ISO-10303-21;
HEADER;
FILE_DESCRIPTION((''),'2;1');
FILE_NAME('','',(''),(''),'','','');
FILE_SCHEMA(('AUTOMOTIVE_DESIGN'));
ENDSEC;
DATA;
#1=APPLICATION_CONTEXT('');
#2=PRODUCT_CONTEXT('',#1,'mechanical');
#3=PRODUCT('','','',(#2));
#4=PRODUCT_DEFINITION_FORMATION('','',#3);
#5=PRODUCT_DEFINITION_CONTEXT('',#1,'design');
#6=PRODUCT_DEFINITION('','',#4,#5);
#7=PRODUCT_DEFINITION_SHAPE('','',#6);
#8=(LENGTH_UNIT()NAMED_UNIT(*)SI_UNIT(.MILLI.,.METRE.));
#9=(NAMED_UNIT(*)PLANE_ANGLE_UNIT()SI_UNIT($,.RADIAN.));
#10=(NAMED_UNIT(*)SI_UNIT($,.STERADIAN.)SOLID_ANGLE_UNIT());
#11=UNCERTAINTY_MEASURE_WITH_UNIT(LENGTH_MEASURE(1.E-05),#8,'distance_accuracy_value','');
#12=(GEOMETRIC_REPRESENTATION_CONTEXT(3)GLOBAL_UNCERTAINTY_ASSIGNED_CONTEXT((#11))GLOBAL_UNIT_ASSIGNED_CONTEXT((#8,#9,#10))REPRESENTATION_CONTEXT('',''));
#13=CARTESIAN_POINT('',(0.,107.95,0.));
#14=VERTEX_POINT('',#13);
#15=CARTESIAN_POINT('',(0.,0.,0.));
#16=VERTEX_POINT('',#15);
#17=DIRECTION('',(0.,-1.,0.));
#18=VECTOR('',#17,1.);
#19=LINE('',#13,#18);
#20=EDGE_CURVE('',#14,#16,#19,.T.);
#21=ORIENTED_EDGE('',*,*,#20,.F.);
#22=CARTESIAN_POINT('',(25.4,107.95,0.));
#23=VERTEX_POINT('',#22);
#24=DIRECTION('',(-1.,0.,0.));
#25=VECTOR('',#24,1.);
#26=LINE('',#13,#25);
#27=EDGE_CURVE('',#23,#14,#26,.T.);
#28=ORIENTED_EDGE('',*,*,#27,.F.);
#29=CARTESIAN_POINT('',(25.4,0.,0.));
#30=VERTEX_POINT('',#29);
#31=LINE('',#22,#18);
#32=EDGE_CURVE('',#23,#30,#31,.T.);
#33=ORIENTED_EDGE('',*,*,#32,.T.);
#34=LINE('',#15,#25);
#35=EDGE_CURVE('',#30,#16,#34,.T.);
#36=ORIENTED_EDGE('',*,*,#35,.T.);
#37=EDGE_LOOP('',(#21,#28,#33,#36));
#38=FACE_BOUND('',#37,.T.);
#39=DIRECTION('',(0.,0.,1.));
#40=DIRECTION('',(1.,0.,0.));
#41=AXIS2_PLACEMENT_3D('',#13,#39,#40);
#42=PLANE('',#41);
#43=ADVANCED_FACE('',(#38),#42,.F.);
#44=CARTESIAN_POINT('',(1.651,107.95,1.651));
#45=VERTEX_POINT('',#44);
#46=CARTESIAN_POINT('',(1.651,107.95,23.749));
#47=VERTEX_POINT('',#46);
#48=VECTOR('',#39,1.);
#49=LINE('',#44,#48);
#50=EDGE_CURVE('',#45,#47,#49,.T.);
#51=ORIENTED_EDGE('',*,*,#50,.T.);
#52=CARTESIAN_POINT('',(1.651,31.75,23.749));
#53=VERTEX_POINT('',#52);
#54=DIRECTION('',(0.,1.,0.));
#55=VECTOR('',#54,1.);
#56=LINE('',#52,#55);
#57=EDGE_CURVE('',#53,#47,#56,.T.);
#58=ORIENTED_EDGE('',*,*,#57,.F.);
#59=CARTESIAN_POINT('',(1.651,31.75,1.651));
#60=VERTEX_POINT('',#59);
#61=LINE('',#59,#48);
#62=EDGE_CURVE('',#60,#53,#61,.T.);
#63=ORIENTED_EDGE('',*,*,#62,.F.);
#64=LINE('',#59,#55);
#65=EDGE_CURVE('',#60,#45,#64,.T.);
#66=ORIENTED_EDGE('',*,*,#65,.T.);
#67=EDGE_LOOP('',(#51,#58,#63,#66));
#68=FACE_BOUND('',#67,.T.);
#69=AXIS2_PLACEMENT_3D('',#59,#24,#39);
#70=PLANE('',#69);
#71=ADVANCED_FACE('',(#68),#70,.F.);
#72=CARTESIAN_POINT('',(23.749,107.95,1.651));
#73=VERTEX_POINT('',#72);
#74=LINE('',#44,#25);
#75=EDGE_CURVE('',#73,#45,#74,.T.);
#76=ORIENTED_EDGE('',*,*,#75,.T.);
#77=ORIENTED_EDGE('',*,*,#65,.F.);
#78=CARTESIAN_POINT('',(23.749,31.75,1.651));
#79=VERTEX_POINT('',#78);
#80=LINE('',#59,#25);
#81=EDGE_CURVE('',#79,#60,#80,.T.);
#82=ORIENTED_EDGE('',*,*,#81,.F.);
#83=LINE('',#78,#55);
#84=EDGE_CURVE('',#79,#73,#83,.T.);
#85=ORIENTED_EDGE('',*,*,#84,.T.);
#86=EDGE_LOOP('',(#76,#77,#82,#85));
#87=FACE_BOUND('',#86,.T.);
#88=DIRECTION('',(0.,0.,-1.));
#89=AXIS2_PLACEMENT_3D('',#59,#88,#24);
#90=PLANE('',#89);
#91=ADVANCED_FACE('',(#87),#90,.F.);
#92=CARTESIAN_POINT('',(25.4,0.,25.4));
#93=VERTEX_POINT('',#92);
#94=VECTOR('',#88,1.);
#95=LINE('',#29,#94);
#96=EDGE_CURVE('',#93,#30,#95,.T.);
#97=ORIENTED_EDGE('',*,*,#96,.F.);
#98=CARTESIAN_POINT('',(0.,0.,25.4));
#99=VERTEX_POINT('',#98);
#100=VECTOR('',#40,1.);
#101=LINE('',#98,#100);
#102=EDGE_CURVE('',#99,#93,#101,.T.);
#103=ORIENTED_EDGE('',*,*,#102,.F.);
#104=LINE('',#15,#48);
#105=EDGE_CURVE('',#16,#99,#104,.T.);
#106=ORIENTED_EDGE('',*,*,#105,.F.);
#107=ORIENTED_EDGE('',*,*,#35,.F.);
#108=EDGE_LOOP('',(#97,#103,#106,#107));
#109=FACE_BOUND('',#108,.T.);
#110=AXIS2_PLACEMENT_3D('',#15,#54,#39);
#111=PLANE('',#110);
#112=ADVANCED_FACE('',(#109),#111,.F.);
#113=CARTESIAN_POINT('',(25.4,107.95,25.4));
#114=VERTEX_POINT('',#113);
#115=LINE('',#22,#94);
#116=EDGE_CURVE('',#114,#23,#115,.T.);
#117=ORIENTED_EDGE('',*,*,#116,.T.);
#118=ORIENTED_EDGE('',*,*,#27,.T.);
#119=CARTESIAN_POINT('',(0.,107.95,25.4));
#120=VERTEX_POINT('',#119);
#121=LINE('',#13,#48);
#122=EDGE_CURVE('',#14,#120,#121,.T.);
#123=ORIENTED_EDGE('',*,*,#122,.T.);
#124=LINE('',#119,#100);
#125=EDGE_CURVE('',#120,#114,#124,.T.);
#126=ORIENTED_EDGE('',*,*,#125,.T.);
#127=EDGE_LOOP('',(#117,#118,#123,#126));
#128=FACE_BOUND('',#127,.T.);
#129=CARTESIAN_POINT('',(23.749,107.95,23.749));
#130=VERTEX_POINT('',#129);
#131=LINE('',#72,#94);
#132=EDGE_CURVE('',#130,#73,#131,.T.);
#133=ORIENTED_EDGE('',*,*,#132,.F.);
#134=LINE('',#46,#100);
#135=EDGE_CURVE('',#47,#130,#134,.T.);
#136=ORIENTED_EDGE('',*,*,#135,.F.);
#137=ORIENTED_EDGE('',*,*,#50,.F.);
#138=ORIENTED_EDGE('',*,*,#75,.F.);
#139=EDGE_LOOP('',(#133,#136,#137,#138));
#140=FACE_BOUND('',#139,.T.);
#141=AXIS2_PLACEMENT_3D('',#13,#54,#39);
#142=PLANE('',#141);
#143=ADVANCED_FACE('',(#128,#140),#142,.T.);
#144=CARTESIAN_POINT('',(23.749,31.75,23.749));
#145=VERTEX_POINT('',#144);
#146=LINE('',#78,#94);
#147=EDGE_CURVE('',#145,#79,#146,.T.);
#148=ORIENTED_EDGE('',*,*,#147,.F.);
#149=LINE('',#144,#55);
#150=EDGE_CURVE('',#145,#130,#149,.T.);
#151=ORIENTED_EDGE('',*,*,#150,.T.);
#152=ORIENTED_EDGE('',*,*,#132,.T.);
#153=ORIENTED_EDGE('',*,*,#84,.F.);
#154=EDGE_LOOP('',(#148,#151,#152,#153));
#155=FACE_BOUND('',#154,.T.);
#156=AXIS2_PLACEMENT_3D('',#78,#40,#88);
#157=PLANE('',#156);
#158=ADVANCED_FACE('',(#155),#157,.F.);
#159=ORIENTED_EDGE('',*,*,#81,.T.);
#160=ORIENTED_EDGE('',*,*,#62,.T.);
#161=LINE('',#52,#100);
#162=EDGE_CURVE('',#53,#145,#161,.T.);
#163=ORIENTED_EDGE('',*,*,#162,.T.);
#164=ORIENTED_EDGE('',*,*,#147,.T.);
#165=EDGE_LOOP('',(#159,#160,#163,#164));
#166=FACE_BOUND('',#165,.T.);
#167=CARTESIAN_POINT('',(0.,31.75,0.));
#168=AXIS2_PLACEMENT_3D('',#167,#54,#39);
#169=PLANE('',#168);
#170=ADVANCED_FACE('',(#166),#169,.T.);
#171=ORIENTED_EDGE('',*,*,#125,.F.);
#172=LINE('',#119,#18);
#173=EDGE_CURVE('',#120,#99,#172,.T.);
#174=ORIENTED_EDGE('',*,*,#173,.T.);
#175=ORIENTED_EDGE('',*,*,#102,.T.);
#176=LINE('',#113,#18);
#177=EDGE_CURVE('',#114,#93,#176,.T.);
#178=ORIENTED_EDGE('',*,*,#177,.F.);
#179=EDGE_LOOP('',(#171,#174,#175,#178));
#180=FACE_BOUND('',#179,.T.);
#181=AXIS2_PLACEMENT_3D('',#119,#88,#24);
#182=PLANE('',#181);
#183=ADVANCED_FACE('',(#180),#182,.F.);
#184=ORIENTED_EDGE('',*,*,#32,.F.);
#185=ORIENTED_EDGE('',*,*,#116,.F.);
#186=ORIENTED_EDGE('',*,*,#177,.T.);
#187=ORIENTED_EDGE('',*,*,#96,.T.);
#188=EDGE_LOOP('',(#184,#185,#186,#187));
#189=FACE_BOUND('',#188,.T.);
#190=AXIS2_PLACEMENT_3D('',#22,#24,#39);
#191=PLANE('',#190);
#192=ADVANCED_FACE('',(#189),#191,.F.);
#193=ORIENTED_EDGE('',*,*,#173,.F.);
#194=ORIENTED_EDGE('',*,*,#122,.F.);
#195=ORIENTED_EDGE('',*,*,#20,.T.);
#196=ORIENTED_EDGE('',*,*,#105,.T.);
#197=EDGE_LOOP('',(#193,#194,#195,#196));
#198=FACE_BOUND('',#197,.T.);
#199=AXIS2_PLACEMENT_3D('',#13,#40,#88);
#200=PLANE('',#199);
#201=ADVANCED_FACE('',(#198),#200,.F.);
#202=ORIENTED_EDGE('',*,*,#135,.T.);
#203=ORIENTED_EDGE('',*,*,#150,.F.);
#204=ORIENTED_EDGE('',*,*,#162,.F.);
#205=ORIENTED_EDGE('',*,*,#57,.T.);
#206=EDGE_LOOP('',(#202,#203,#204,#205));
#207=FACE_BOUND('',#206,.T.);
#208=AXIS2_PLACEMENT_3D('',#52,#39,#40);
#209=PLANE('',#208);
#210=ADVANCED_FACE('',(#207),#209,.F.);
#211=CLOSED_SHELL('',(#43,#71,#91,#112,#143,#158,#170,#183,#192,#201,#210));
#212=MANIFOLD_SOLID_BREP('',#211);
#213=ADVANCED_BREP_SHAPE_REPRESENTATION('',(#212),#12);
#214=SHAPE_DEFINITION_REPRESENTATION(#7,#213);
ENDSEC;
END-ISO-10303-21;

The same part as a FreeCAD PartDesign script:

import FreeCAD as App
import Part
import Sketcher
from FreeCAD import Vector
Q = App.Units.Quantity

doc = App.newDocument("Part")
body = doc.addObject("PartDesign::Body", "Body")

sketch1 = body.newObject("Sketcher::SketchObject", "Sketch")
sketch1.AttachmentSupport = (doc.getObject("XZ_Plane"), [""])
sketch1.MapMode = "FlatFace"
sketch1.addGeometry([
    Part.LineSegment(Vector(0, 0, 0), Vector(0, 25.4, 0)),
    Part.LineSegment(Vector(0, 25.4, 0), Vector(25.4, 25.4, 0)),
    Part.LineSegment(Vector(25.4, 25.4, 0), Vector(25.4, 0, 0)),
    Part.LineSegment(Vector(25.4, 0, 0), Vector(0, 0, 0)),
], False)
sketch1.addConstraint([
    Sketcher.Constraint("Coincident", 0, 2, 1, 1),
    Sketcher.Constraint("Coincident", 1, 2, 2, 1),
    Sketcher.Constraint("Coincident", 2, 2, 3, 1),
    Sketcher.Constraint("Coincident", 3, 2, 0, 1),
    Sketcher.Constraint("Vertical", 0),
    Sketcher.Constraint("Horizontal", 1),
    Sketcher.Constraint("Vertical", 2),
    Sketcher.Constraint("Horizontal", 3),
    Sketcher.Constraint("Coincident", 3, 2, -1, 1),
    Sketcher.Constraint("Equal", 3, 0),
    Sketcher.Constraint("DistanceX", 1, 1, 1, 2, Q("1 in")),
])
pad1 = body.newObject("PartDesign::Pad", "Pad")
pad1.Profile = sketch1
pad1.Length = Q("4.25 in")
pad1.Reversed = True

sketch2 = body.newObject("Sketcher::SketchObject", "Sketch001")
sketch2.AttachmentSupport = (doc.getObject("XZ_Plane"), [""])
sketch2.MapMode = "FlatFace"
sketch2.AttachmentOffset = App.Placement(Vector(0, 0, -4.25 * 25.4), App.Rotation())
sketch2.addGeometry([
    Part.LineSegment(Vector(1.651, 1.651, 0), Vector(1.651, 23.749, 0)),
    Part.LineSegment(Vector(1.651, 23.749, 0), Vector(23.749, 23.749, 0)),
    Part.LineSegment(Vector(23.749, 23.749, 0), Vector(23.749, 1.651, 0)),
    Part.LineSegment(Vector(23.749, 1.651, 0), Vector(1.651, 1.651, 0)),
], False)
sketch2.addConstraint([
    Sketcher.Constraint("Coincident", 0, 2, 1, 1),
    Sketcher.Constraint("Coincident", 1, 2, 2, 1),
    Sketcher.Constraint("Coincident", 2, 2, 3, 1),
    Sketcher.Constraint("Coincident", 3, 2, 0, 1),
    Sketcher.Constraint("Vertical", 0),
    Sketcher.Constraint("Horizontal", 1),
    Sketcher.Constraint("Vertical", 2),
    Sketcher.Constraint("Horizontal", 3),
    Sketcher.Constraint("Equal", 3, 0),
    Sketcher.Constraint("DistanceX", 1, 1, 1, 2, Q("0.87 in")),
    Sketcher.Constraint("DistanceX", -1, 1, 0, 2, Q("0.065 in")),
    Sketcher.Constraint("DistanceY", -1, 1, 0, 2, Q("0.935 in")),
])
pocket1 = body.newObject("PartDesign::Pocket", "Pocket")
pocket1.Profile = sketch2
pocket1.Length = Q("3 in")
pocket1.Reversed = True

doc.recompute()
